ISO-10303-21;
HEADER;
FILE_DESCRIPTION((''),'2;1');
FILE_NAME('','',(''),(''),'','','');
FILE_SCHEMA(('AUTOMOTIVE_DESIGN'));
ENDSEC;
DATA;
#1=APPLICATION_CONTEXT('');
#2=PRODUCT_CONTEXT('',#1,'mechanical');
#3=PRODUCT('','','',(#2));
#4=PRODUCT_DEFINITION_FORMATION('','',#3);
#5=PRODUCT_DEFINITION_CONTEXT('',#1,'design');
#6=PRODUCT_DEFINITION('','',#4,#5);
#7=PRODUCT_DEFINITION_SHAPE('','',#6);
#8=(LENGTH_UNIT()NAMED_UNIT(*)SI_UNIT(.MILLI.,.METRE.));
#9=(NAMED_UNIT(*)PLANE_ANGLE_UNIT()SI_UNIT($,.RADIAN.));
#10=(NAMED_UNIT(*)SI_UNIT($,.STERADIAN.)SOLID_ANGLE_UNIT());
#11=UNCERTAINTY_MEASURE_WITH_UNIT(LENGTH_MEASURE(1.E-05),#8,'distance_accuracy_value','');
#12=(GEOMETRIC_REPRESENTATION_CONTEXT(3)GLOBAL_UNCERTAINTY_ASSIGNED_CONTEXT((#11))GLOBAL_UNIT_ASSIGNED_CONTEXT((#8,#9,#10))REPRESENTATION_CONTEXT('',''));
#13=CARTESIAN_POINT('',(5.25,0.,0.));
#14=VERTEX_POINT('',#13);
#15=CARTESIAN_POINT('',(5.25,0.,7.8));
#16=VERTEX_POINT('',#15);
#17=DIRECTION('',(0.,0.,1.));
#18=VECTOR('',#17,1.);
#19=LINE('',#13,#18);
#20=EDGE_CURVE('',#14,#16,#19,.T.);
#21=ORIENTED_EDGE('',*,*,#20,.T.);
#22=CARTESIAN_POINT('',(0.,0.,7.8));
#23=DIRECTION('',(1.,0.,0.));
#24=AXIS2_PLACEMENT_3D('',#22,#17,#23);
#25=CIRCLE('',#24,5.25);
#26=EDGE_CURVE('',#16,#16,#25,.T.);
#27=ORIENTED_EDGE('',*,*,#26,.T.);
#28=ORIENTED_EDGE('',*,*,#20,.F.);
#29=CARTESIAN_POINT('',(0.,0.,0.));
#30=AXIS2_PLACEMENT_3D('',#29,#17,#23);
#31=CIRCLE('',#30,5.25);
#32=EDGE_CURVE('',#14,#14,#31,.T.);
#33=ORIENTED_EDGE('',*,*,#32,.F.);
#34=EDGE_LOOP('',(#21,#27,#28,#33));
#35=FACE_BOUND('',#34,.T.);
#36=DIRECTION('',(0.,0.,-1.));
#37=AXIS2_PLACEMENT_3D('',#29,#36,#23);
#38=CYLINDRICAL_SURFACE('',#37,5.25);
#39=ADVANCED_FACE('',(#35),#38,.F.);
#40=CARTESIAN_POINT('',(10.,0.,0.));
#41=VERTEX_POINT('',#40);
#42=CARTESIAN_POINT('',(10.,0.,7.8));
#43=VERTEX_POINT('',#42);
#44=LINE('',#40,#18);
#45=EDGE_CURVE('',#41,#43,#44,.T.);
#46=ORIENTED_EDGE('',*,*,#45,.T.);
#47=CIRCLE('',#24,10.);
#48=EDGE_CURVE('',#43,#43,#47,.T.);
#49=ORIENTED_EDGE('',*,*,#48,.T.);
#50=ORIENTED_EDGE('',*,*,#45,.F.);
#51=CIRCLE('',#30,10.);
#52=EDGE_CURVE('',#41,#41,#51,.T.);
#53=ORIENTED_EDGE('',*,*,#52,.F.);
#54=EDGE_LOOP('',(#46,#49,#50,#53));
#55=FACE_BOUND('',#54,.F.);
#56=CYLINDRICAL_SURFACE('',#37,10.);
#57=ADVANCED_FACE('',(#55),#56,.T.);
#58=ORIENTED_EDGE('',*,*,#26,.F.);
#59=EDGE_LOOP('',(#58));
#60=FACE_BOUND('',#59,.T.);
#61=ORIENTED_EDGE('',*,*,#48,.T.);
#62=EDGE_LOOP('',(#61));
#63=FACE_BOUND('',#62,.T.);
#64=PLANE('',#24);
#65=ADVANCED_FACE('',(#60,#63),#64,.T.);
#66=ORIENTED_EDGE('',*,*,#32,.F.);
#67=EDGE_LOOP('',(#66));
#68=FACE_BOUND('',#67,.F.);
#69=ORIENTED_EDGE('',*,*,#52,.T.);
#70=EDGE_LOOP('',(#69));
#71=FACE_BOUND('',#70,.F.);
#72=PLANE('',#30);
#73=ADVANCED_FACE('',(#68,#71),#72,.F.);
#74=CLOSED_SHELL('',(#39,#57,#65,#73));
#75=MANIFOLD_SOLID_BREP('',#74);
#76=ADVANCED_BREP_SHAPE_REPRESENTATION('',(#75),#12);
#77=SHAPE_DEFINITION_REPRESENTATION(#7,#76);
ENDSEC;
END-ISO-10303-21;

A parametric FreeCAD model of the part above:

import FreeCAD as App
import Part
import Sketcher
from FreeCAD import Vector

doc = App.newDocument("Part")
body = doc.addObject("PartDesign::Body", "Body")

sketch1 = body.newObject("Sketcher::SketchObject", "Sketch")
sketch1.AttachmentSupport = (doc.getObject("XY_Plane"), [""])
sketch1.MapMode = "FlatFace"
sketch1.addGeometry(Part.Circle(Vector(0, 0, 0), Vector(0, 0, 1), 10), False)
sketch1.addGeometry(Part.Circle(Vector(0, 0, 0), Vector(0, 0, 1), 5), False)
sketch1.addConstraint(Sketcher.Constraint("Coincident", 0, 3, -1, 1))
sketch1.addConstraint(Sketcher.Constraint("Coincident", 1, 3, -1, 1))
sketch1.addConstraint(Sketcher.Constraint("Diameter", 0, 20.0))
sketch1.addConstraint(Sketcher.Constraint("Diameter", 1, 10.5))
pad1 = body.newObject("PartDesign::Pad", "Pad")
pad1.Profile = sketch1
pad1.Length = 7.8

doc.recompute()
